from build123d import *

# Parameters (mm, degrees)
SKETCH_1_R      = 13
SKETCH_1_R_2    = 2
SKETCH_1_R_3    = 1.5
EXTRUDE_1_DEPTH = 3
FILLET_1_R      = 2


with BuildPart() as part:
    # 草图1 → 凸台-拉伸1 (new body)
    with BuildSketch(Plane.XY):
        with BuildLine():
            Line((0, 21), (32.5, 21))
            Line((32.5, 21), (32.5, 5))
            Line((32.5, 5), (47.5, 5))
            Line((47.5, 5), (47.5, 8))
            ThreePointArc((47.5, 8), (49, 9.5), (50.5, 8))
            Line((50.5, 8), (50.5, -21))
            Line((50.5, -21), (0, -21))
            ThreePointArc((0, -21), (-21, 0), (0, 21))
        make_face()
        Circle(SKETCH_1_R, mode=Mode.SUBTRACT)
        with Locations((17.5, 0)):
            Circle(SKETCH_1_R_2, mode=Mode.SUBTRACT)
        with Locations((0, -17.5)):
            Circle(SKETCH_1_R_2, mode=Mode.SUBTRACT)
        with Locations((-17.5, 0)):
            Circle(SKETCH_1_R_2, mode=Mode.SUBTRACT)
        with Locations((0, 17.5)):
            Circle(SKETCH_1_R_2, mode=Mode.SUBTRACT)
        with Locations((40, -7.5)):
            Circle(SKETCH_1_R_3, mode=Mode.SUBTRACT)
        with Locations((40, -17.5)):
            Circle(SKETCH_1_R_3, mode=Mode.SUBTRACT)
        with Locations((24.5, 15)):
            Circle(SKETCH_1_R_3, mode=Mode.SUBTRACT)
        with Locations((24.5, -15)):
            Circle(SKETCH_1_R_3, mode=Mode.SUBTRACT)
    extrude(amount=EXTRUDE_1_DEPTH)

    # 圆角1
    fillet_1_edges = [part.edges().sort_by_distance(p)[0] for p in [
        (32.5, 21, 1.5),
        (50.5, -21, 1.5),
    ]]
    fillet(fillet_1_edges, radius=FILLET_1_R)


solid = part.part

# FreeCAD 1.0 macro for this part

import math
import FreeCAD as App
import Part
import Sketcher
from FreeCAD import Vector


def edges_at(feature, points):
    """Names of the edges that pass closest to the given points."""
    edges = feature.Shape.Edges
    near = lambda p: min(range(len(edges)), key=lambda i: edges[i].distToShape(Part.Vertex(*p))[0])
    return sorted({f"Edge{near(p) + 1}" for p in points})

doc = App.newDocument("Part")
params = doc.addObject("Spreadsheet::Sheet", "Params")
for row, (alias, value) in enumerate([
    ("sketch1_diameter", "3 mm"),
    ("sketch1_diameter2", "4 mm"),
    ("sketch1_diameter3", "26 mm"),
    ("sketch1_radius", "21 mm"),
    ("sketch1_width", "15 mm"),
    ("pad1_length", "3 mm"),
    ("fillet_radius", "2 mm"),
], start=1):
    params.set(f"A{row}", alias)
    params.set(f"B{row}", "=" + value)
    params.setAlias(f"B{row}", alias)

body = doc.addObject("PartDesign::Body", "Body")

# Sketch on XY plane
sketch1 = body.newObject("Sketcher::SketchObject", "Sketch")
sketch1.AttachmentSupport = (doc.getObject("XY_Plane"), [""])
sketch1.MapMode = "FlatFace"
sketch1.addGeometry(Part.LineSegment(Vector(32.5, 21, 0), Vector(0, 21, 0)), False)
sketch1.addGeometry(Part.ArcOfCircle(Part.Circle(Vector(0, 0, 0), Vector(0, 0, 1), 21), math.radians(90), math.radians(270)), False)
sketch1.addGeometry(Part.LineSegment(Vector(0, -21, 0), Vector(50.5, -21, 0)), False)
sketch1.addGeometry(Part.LineSegment(Vector(50.5, -21, 0), Vector(50.5, 8, 0)), False)
sketch1.addGeometry(Part.ArcOfCircle(Part.Circle(Vector(49, 8, 0), Vector(0, 0, 1), 1.5), math.radians(0), math.radians(180)), False)
sketch1.addGeometry(Part.LineSegment(Vector(47.5, 8, 0), Vector(47.5, 5, 0)), False)
sketch1.addGeometry(Part.LineSegment(Vector(47.5, 5, 0), Vector(32.5, 5, 0)), False)
sketch1.addGeometry(Part.LineSegment(Vector(32.5, 5, 0), Vector(32.5, 21, 0)), False)
sketch1.addGeometry(Part.Circle(Vector(40, -17.5, 0), Vector(0, 0, 1), 1.5), False)
sketch1.addGeometry(Part.Circle(Vector(24.5, -15, 0), Vector(0, 0, 1), 1.5), False)
sketch1.addGeometry(Part.Circle(Vector(40, -7.5, 0), Vector(0, 0, 1), 1.5), False)
sketch1.addGeometry(Part.Circle(Vector(0, -17.5, 0), Vector(0, 0, 1), 2), False)
sketch1.addGeometry(Part.Circle(Vector(17.5, 0, 0), Vector(0, 0, 1), 2), False)
sketch1.addGeometry(Part.Circle(Vector(24.5, 15, 0), Vector(0, 0, 1), 1.5), False)
sketch1.addGeometry(Part.Circle(Vector(0, 0, 0), Vector(0, 0, 1), 13), False)
sketch1.addGeometry(Part.Circle(Vector(-17.5, 0, 0), Vector(0, 0, 1), 2), False)
sketch1.addGeometry(Part.Circle(Vector(0, 17.5, 0), Vector(0, 0, 1), 2), False)
sketch1.addConstraint(Sketcher.Constraint("Tangent", 0, 2, 1, 1))
sketch1.addConstraint(Sketcher.Constraint("Tangent", 1, 2, 2, 1))
sketch1.addConstraint(Sketcher.Constraint("Coincident", 2, 2, 3, 1))
sketch1.addConstraint(Sketcher.Constraint("Tangent", 3, 2, 4, 1))
sketch1.addConstraint(Sketcher.Constraint("Tangent", 4, 2, 5, 1))
sketch1.addConstraint(Sketcher.Constraint("Coincident", 5, 2, 6, 1))
sketch1.addConstraint(Sketcher.Constraint("Coincident", 6, 2, 7, 1))
sketch1.addConstraint(Sketcher.Constraint("Coincident", 7, 2, 0, 1))
sketch1.addConstraint(Sketcher.Constraint("Horizontal", 0))
sketch1.addConstraint(Sketcher.Constraint("Horizontal", 2))
sketch1.addConstraint(Sketcher.Constraint("Vertical", 3))
sketch1.addConstraint(Sketcher.Constraint("Vertical", 5))
sketch1.addConstraint(Sketcher.Constraint("Horizontal", 6))
sketch1.addConstraint(Sketcher.Constraint("Vertical", 7))
sketch1.addConstraint(Sketcher.Constraint("Coincident", 1, 3, -1, 1))
sketch1.addConstraint(Sketcher.Constraint("Coincident", 14, 3, -1, 1))
sketch1.addConstraint(Sketcher.Constraint("Equal", 4, 8))
sketch1.addConstraint(Sketcher.Constraint("Equal", 8, 9))
sketch1.addConstraint(Sketcher.Constraint("Equal", 9, 10))
sketch1.addConstraint(Sketcher.Constraint("Equal", 11, 12))
sketch1.addConstraint(Sketcher.Constraint("Equal", 10, 13))
sketch1.addConstraint(Sketcher.Constraint("Equal", 12, 15))
sketch1.addConstraint(Sketcher.Constraint("Equal", 15, 16))
sketch1.addConstraint(Sketcher.Constraint("Symmetric", 12, 3, 15, 3, -1, 1))
sketch1.addConstraint(Sketcher.Constraint("Symmetric", 11, 3, 16, 3, -1, 1))
sketch1.addConstraint(Sketcher.Constraint("Symmetric", 9, 3, 13, 3, -1))
sketch1.addConstraint(Sketcher.Constraint("PointOnObject", 11, 3, -2))
sketch1.addConstraint(Sketcher.Constraint("PointOnObject", 12, 3, -1))
sketch1.addConstraint(Sketcher.Constraint("Horizontal", 8, 3, 11, 3))
sketch1.addConstraint(Sketcher.Constraint("Vertical", 8, 3, 10, 3))
sketch1.addConstraint(Sketcher.Constraint("Diameter", 8, 3.0))
sketch1.addConstraint(Sketcher.Constraint("Diameter", 11, 4.0))
sketch1.addConstraint(Sketcher.Constraint("Diameter", 14, 26.0))
sketch1.addConstraint(Sketcher.Constraint("Radius", 1, 21.0))
sketch1.addConstraint(Sketcher.Constraint("DistanceX", 6, 2, 6, 1, 15.0))
sketch1.addConstraint(Sketcher.Constraint("DistanceY", 3, 1, 3, 2, 29.0))
sketch1.addConstraint(Sketcher.Constraint("DistanceY", 5, 2, 5, 1, 3.0))
sketch1.addConstraint(Sketcher.Constraint("DistanceX", 0, 2, 0, 1, 32.5))
sketch1.addConstraint(Sketcher.Constraint("DistanceX", -1, 1, 8, 3, 40.0))
sketch1.addConstraint(Sketcher.Constraint("DistanceY", 9, 3, -1, 1, 15.0))
sketch1.addConstraint(Sketcher.Constraint("DistanceY", 8, 3, 10, 3, 10.0))
sketch1.addConstraint(Sketcher.Constraint("DistanceX", 12, 3, 9, 3, 7.0))
sketch1.addConstraint(Sketcher.Constraint("DistanceX", 15, 3, 12, 3, 35.0))
sketch1.addConstraint(Sketcher.Constraint("DistanceY", 8, 3, -1, 1, 17.5))
sketch1.setExpression("Constraints[30]", "Params.sketch1_diameter")
sketch1.setExpression("Constraints[31]", "Params.sketch1_diameter2")
sketch1.setExpression("Constraints[32]", "Params.sketch1_diameter3")
sketch1.setExpression("Constraints[33]", "Params.sketch1_radius")
sketch1.setExpression("Constraints[34]", "Params.sketch1_width")
pad1 = body.newObject("PartDesign::Pad", "Pad")
pad1.Profile = sketch1
pad1.setExpression("Length", "Params.pad1_length")
doc.recompute()

fillet = body.newObject("PartDesign::Fillet", "Fillet")
fillet.Base = (pad1, edges_at(pad1, [(32.5, 21, 1.5), (50.5, -21, 1.5)]))
fillet.setExpression("Radius", "Params.fillet_radius")

doc.recompute()
